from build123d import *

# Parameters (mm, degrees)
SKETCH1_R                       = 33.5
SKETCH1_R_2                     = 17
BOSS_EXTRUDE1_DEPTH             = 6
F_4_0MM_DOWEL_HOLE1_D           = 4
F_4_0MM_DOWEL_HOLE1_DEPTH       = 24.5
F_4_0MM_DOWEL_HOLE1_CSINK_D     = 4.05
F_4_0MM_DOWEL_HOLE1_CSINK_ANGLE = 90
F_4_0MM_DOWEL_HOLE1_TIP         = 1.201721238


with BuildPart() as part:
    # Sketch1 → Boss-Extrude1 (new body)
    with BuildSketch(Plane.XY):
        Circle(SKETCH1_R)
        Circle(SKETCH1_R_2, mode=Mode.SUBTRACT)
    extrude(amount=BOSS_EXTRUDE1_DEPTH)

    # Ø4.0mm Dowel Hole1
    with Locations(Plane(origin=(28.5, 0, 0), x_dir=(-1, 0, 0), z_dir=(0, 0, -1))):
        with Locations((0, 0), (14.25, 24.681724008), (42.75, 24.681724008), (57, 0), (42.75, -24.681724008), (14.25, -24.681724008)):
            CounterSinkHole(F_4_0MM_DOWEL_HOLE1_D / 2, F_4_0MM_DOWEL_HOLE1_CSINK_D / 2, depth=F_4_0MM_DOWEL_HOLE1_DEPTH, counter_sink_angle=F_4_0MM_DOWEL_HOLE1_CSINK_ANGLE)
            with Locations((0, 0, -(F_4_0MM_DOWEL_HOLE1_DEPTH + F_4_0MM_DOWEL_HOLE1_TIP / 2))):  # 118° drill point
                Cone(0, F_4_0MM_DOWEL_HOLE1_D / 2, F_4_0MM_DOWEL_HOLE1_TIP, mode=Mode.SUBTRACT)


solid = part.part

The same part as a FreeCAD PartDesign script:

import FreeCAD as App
import Part
import Sketcher

doc = App.newDocument("Part")
body = doc.addObject("PartDesign::Body", "Body")

# Sketch on XY plane
sketch1 = doc.addObject("Sketcher::SketchObject", "Sketch")
body.addObject(sketch1)
sketch1.AttachmentSupport = (doc.XY_Plane, [""])
sketch1.MapMode = "FlatFace"
sketch1.addGeometry([
    Part.Circle(App.Vector(0, 0, 0), App.Vector(0, 0, 1), 34),
    Part.Circle(App.Vector(0, 0, 0), App.Vector(0, 0, 1), 17),
], False)
sketch1.addConstraint([
    Sketcher.Constraint("Coincident", 0, 3, -1, 1),
    Sketcher.Constraint("Coincident", 1, 3, -1, 1),
    Sketcher.Constraint("Diameter", 0, 67.0),
    Sketcher.Constraint("Diameter", 1, 34.0),
])
pad1 = doc.addObject("PartDesign::Pad", "Pad")
body.addObject(pad1)
pad1.Profile = sketch1
pad1.Length = 6

# Sketch on XY plane
sketch2 = doc.addObject("Sketcher::SketchObject", "Sketch001")
body.addObject(sketch2)
sketch2.AttachmentSupport = (doc.XY_Plane, [""])
sketch2.MapMode = "FlatFace"
sketch2.addGeometry([
    Part.Circle(App.Vector(28.5, 0, 0), App.Vector(0, 0, 1), 2),  # 0
    Part.Circle(App.Vector(14.2, 24.7, 0), App.Vector(0, 0, 1), 2),  # 1
    Part.Circle(App.Vector(-14.2, 24.7, 0), App.Vector(0, 0, 1), 2),  # 2
    Part.Circle(App.Vector(-28.5, 0, 0), App.Vector(0, 0, 1), 2),  # 3
    Part.Circle(App.Vector(-14.2, -24.7, 0), App.Vector(0, 0, 1), 2),  # 4
    Part.Circle(App.Vector(14.2, -24.7, 0), App.Vector(0, 0, 1), 2),  # 5
], False)
sketch2.addConstraint([
    Sketcher.Constraint("Equal", 0, 1),
    Sketcher.Constraint("Equal", 1, 2),
    Sketcher.Constraint("Equal", 2, 3),
    Sketcher.Constraint("Equal", 3, 4),
    Sketcher.Constraint("Equal", 4, 5),
    Sketcher.Constraint("Symmetric", 0, 3, 3, 3, -1, 1),
    Sketcher.Constraint("Symmetric", 1, 3, 4, 3, -1, 1),
    Sketcher.Constraint("Symmetric", 2, 3, 5, 3, -1, 1),
    Sketcher.Constraint("Symmetric", 1, 3, 2, 3, -2),
    Sketcher.Constraint("PointOnObject", 0, 3, -1),
    Sketcher.Constraint("Diameter", 0, 4.0),
    Sketcher.Constraint("DistanceX", 3, 3, 0, 3, 57.0),
    Sketcher.Constraint("DistanceX", 2, 3, 1, 3, 28.5),
    Sketcher.Constraint("DistanceY", 4, 3, 2, 3, 49.363448),
])
doc.recompute()
hole = doc.addObject("PartDesign::Hole", "Hole")
body.addObject(hole)
hole.Profile = sketch2
hole.ThreadType = "None"
hole.Diameter = 4
hole.DepthType = "Dimension"
hole.Depth = 24.5
hole.DrillPoint = "Angled"
hole.DrillPointAngle = 118
hole.HoleCutType = "Countersink"
hole.HoleCutDiameter = 4.05
hole.HoleCutCountersinkAngle = 90
hole.Reversed = True

doc.recompute()
